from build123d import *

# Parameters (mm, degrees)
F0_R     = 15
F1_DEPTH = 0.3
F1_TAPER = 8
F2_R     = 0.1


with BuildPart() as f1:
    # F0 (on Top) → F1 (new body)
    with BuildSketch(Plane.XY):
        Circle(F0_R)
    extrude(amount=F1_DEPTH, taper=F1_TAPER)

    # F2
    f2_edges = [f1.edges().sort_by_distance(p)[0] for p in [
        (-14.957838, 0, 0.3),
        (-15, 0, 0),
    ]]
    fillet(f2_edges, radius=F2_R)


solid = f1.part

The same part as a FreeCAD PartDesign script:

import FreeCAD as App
import Part
import Sketcher
from FreeCAD import Vector
Q = App.Units.Quantity


def edges_at(feature, points):
    """Names of the edges that pass closest to the given points."""
    edges = feature.Shape.Edges
    near = lambda p: min(range(len(edges)), key=lambda i: edges[i].distToShape(Part.Vertex(*p))[0])
    return sorted({f"Edge{near(p) + 1}" for p in points})

doc = App.newDocument("Part")
body = doc.addObject("PartDesign::Body", "Body")

# Sketch on XY plane
sketch1 = doc.addObject("Sketcher::SketchObject", "Sketch")
body.addObject(sketch1)
sketch1.AttachmentSupport = (doc.XY_Plane, [""])
sketch1.MapMode = "FlatFace"
sketch1.addGeometry(Part.Circle(Vector(0, 0, 0), Vector(0, 0, 1), 15), False)
sketch1.addConstraint([
    Sketcher.Constraint("Coincident", 0, 3, -1, 1),
    Sketcher.Constraint("Diameter", 0, Q("30 mm")),
])
pad1 = doc.addObject("PartDesign::Pad", "Pad")
body.addObject(pad1)
pad1.Profile = sketch1
pad1.Length = 0.3
pad1.TaperAngle = -8
doc.recompute()

fillet = doc.addObject("PartDesign::Fillet", "Fillet")
body.addObject(fillet)
fillet.Base = (pad1, edges_at(pad1, [(-14.958, 0, 0.3), (-15, 0, 0)]))
fillet.Radius = 0.1

doc.recompute()
